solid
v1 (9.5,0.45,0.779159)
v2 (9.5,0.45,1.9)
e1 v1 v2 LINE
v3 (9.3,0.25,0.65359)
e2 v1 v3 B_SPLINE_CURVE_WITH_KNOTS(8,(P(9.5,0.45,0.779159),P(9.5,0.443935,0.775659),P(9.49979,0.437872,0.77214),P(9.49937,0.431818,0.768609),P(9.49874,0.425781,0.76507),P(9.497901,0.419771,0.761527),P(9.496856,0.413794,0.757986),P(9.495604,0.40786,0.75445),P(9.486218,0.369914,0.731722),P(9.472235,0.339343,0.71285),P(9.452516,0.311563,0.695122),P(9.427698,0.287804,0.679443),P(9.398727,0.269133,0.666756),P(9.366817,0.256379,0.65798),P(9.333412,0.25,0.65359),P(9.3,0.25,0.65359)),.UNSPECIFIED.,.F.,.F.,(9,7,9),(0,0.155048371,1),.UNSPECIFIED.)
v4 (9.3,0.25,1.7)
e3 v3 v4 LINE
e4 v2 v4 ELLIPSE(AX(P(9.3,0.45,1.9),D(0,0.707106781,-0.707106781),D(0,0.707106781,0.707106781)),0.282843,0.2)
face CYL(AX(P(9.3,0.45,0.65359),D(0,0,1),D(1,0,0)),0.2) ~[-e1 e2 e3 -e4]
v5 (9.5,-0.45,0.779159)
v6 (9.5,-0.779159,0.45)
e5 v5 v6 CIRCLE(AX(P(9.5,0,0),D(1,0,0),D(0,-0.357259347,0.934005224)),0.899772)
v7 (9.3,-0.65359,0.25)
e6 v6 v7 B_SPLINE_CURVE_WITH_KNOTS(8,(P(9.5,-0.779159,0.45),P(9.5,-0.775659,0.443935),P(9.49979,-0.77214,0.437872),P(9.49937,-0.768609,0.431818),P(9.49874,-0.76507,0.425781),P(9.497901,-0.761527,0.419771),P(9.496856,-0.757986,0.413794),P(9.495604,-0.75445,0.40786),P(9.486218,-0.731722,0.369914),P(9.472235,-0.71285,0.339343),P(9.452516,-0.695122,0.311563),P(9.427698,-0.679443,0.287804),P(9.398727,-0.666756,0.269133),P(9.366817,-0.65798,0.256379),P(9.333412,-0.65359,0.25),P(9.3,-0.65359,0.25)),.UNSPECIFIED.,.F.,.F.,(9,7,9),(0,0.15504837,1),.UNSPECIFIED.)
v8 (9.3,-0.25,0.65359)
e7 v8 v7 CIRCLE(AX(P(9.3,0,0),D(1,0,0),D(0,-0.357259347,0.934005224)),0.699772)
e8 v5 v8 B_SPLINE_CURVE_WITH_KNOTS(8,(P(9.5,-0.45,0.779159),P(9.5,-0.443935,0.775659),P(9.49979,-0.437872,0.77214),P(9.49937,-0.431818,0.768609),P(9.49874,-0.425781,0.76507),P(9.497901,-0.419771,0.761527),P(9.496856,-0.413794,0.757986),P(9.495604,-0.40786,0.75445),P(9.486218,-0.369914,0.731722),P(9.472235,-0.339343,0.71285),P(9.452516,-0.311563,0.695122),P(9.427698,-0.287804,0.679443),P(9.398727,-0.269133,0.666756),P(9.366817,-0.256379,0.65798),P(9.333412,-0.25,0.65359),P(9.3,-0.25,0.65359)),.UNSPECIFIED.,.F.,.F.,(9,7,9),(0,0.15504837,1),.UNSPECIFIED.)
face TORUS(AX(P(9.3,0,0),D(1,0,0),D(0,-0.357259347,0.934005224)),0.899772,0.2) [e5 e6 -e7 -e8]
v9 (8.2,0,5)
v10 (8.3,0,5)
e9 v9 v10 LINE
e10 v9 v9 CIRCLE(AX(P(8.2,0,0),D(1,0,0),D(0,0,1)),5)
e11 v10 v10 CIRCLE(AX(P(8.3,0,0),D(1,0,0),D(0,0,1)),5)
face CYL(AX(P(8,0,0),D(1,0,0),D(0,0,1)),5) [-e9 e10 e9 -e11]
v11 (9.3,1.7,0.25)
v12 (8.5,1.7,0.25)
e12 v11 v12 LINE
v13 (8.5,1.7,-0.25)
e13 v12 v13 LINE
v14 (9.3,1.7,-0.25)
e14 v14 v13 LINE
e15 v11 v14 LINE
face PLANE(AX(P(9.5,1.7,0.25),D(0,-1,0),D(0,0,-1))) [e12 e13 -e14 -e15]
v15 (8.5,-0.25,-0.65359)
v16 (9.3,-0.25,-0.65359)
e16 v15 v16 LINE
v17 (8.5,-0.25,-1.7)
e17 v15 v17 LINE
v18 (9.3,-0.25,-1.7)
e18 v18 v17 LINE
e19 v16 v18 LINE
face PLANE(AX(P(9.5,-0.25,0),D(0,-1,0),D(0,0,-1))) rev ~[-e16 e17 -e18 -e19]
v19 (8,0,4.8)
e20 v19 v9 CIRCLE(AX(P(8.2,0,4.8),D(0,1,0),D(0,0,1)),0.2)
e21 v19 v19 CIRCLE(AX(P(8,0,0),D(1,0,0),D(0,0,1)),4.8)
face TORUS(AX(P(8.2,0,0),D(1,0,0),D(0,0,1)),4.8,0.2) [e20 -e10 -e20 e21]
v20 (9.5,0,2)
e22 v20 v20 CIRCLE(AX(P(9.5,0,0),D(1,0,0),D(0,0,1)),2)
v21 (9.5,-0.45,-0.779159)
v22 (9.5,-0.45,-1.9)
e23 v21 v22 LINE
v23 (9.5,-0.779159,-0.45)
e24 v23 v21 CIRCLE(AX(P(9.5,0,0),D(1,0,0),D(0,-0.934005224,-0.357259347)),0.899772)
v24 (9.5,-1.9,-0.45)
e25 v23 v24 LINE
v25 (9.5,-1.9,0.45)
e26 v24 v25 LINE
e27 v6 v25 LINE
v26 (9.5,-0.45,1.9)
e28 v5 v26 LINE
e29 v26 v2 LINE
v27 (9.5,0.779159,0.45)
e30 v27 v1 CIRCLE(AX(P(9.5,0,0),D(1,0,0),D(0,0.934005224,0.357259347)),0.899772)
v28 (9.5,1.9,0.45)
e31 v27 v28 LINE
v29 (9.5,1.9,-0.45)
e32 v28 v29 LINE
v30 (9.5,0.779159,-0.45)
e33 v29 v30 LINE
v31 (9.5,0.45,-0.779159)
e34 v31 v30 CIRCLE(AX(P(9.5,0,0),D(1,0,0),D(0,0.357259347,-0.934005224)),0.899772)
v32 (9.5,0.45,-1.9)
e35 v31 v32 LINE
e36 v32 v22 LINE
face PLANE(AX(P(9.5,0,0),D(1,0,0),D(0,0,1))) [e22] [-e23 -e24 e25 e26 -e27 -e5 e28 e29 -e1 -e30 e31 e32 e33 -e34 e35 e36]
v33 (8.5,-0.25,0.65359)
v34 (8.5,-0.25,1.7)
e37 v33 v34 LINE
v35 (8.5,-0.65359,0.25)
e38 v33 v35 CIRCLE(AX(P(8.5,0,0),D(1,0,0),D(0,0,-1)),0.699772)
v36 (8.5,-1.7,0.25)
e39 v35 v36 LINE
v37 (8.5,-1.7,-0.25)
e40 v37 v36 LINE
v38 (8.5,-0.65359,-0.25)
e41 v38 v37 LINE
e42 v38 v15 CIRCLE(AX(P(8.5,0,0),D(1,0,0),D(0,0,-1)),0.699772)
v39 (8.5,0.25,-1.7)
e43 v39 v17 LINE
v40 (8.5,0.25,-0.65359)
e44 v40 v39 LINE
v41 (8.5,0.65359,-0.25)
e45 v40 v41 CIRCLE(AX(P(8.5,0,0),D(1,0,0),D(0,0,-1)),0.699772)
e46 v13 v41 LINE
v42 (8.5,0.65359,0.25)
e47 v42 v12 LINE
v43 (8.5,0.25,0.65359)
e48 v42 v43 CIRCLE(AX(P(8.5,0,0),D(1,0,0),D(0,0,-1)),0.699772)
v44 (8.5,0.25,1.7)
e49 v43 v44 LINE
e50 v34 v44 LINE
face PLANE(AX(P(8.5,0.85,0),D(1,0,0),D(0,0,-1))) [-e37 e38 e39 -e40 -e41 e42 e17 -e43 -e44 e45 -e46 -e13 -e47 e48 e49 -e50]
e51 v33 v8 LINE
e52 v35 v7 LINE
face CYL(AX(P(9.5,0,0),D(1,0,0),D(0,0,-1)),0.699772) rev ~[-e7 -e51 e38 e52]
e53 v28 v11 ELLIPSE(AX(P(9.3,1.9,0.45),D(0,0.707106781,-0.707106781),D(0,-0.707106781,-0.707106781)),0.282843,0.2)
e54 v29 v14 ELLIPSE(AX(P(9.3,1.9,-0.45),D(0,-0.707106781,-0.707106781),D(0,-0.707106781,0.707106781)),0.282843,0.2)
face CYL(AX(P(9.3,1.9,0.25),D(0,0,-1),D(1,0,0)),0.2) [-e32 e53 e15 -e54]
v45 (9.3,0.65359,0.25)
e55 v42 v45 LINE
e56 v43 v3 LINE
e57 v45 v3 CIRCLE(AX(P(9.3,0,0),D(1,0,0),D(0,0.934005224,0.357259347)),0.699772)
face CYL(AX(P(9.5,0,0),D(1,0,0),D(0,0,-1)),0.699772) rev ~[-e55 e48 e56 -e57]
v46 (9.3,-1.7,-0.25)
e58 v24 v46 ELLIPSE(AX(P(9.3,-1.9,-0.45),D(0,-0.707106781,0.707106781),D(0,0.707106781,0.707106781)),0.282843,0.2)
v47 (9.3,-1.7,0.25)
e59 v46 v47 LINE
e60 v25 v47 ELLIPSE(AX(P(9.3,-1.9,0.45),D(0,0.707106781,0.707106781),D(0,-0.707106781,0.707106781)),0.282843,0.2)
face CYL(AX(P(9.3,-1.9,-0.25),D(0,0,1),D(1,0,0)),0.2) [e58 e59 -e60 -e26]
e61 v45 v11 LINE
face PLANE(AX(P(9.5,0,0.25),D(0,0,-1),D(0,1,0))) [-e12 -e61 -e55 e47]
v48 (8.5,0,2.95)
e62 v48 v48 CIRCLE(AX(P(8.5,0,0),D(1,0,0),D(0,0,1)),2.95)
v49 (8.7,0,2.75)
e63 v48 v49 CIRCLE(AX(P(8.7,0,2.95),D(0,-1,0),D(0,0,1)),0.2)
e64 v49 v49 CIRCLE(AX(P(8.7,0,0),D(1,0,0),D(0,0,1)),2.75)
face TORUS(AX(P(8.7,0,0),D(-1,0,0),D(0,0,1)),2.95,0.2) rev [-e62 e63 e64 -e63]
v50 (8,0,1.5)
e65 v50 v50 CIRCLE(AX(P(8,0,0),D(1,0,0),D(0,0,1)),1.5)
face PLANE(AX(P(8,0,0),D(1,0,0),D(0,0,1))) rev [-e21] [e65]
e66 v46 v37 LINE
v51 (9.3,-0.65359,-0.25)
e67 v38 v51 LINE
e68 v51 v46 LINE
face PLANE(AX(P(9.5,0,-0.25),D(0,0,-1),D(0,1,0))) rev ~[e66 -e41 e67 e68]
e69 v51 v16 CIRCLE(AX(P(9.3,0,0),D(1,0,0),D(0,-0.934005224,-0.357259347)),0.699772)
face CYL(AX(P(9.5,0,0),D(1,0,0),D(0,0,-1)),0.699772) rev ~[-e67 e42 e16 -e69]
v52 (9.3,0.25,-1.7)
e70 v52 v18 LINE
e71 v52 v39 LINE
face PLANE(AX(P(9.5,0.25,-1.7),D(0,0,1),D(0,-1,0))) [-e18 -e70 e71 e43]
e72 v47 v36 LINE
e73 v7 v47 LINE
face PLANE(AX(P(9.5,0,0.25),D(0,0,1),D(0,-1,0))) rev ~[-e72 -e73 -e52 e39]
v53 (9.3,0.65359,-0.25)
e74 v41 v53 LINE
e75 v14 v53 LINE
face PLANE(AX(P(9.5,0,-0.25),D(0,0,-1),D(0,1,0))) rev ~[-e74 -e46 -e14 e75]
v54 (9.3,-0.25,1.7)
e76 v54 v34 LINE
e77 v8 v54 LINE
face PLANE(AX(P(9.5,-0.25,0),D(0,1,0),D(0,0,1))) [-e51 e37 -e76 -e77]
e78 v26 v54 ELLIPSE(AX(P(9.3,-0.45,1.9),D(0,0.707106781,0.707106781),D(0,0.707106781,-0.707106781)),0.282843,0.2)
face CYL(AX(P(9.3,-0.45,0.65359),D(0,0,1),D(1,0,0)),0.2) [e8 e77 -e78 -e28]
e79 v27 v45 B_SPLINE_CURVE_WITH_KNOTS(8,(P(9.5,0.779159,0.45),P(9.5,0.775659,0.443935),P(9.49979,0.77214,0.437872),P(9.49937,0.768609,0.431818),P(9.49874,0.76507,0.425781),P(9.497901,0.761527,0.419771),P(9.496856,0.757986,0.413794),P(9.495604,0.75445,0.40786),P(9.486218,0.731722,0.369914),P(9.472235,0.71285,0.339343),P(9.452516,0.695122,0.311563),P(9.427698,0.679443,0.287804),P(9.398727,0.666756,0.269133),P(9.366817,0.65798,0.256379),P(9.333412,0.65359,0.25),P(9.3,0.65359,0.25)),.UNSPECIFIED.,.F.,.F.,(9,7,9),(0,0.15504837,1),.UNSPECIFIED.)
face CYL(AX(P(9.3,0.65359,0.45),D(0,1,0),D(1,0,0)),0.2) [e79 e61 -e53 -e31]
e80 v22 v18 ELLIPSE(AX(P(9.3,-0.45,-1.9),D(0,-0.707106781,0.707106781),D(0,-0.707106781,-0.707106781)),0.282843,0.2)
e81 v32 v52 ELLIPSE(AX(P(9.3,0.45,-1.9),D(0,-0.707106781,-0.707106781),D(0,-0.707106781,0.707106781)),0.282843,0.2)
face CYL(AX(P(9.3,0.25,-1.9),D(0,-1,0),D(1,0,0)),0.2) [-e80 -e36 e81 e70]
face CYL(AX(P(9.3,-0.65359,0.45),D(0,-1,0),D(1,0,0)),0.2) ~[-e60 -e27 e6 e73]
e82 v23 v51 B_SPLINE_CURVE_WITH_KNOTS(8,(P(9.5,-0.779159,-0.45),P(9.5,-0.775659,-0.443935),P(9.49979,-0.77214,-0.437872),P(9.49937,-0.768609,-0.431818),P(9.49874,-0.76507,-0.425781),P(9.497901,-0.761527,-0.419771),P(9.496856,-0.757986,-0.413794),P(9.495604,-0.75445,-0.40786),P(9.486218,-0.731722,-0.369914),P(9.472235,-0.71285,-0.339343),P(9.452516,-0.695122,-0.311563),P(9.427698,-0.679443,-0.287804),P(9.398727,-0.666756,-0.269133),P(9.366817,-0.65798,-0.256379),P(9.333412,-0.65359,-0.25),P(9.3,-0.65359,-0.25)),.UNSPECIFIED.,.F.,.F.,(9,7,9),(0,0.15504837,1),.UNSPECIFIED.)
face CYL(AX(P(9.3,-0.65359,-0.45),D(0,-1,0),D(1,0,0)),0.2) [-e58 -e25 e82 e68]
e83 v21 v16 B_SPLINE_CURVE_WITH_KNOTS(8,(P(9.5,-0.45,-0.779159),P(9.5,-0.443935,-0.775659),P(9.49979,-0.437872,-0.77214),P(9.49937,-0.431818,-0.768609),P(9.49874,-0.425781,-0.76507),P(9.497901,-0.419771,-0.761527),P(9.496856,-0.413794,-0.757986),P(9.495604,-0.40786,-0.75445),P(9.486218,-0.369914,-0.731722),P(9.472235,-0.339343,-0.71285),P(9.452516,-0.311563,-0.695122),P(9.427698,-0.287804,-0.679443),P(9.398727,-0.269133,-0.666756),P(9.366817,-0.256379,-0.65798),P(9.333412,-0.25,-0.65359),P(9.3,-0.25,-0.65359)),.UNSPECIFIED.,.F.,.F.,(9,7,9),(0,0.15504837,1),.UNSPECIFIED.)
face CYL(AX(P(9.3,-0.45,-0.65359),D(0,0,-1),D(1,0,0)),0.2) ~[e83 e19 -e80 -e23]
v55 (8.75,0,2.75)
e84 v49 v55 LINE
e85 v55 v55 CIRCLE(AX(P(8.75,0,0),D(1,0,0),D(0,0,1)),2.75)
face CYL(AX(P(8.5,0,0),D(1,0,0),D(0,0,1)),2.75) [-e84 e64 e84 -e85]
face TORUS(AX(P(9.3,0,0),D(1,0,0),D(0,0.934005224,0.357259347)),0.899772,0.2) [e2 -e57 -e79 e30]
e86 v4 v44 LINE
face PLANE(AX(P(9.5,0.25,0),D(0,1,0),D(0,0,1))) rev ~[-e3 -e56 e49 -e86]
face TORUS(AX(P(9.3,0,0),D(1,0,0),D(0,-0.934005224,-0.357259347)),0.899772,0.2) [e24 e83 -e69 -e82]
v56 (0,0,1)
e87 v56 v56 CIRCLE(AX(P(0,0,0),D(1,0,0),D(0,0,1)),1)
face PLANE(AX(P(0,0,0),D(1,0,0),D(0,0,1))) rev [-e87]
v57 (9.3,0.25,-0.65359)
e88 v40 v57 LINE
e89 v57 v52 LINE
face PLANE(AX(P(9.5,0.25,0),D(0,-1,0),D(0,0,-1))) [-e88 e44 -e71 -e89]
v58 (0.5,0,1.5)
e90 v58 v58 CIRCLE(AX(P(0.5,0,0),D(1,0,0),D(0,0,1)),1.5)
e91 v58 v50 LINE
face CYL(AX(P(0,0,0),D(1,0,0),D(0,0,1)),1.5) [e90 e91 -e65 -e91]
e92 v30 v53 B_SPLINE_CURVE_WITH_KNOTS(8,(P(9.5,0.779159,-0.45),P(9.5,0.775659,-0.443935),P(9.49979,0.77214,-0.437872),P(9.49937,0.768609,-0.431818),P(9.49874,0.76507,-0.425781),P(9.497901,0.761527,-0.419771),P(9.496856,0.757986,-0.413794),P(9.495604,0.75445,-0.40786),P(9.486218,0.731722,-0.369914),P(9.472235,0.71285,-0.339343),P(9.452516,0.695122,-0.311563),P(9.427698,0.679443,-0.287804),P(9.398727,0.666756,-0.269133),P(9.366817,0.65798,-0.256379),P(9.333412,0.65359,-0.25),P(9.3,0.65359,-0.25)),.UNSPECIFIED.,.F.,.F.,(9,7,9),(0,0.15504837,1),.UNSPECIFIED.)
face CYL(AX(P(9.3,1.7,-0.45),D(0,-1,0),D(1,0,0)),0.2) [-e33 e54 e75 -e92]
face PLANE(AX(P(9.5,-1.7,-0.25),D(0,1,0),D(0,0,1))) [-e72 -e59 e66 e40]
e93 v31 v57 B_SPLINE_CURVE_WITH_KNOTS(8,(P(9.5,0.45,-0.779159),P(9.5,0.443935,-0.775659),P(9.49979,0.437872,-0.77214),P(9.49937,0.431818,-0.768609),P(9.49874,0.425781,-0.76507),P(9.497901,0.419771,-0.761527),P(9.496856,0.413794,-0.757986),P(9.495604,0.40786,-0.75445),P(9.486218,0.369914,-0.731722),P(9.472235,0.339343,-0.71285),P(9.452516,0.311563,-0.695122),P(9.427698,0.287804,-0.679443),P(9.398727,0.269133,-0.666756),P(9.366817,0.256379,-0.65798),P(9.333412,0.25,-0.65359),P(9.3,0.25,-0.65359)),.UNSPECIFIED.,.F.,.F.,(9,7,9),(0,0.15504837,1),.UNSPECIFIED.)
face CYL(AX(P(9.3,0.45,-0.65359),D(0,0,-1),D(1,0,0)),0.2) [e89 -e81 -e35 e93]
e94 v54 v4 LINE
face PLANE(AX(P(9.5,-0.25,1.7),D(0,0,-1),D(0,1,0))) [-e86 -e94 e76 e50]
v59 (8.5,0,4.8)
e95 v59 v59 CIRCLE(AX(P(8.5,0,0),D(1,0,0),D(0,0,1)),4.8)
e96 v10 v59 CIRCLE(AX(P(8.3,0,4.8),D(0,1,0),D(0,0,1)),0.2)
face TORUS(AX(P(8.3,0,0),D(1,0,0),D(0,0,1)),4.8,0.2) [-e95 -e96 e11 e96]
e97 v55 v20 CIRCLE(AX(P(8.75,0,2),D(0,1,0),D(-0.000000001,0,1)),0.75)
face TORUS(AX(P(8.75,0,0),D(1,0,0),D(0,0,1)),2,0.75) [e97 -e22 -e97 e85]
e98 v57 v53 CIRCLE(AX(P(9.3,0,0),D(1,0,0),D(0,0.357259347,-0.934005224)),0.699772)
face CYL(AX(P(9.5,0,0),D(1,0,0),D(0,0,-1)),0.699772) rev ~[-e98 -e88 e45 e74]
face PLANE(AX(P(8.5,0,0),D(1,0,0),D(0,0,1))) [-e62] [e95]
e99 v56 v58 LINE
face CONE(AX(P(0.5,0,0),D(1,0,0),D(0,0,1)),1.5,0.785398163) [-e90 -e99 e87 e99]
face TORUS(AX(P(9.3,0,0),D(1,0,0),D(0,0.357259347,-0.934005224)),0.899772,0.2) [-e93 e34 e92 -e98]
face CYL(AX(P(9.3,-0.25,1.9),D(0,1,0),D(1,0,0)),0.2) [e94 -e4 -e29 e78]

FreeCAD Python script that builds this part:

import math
import FreeCAD as App
import Part
import Sketcher
from FreeCAD import Vector
Q = App.Units.Quantity


def edges_at(feature, points):
    """Names of the edges that pass closest to the given points."""
    edges = feature.Shape.Edges
    near = lambda p: min(range(len(edges)), key=lambda i: edges[i].distToShape(Part.Vertex(*p))[0])
    return sorted({f"Edge{near(p) + 1}" for p in points})


def add_polygon(sketch, points):
    """Adds a closed chain of lines whose ends are joined by coincident constraints."""
    first, n = sketch.GeometryCount, len(points)
    for a, b in zip(points, points[1:] + points[:1]):
        sketch.addGeometry(Part.LineSegment(App.Vector(*a, 0), App.Vector(*b, 0)), False)
    for i in range(n):
        sketch.addConstraint(Sketcher.Constraint("Coincident", first + i, 2, first + (i + 1) % n, 1))

doc = App.newDocument("Part")
body = doc.addObject("PartDesign::Body", "Body")

# Sketch on XY plane
sketch1 = body.newObject("Sketcher::SketchObject", "Sketch")
sketch1.AttachmentSupport = (doc.getObject("XY_Plane"), [""])
sketch1.MapMode = "FlatFace"
sketch1.addGeometry([
    Part.LineSegment(Vector(0, 1.5, 0), Vector(0, 0, 0)),  # 0
    Part.LineSegment(Vector(0, 0, 0), Vector(9.5, 0, 0)),  # 1
    Part.LineSegment(Vector(9.5, 0, 0), Vector(9.5, 2, 0)),  # 2
    Part.ArcOfCircle(Part.Circle(Vector(8.75, 2, 0), Vector(0, 0, 1), 0.75), math.radians(0), math.radians(90)),  # 3
    Part.LineSegment(Vector(8.75, 2.75, 0), Vector(8.5, 2.75, 0)),  # 4
    Part.LineSegment(Vector(8.5, 2.75, 0), Vector(8.5, 5, 0)),  # 5
    Part.LineSegment(Vector(8.5, 5, 0), Vector(8, 5, 0)),  # 6
    Part.LineSegment(Vector(8, 5, 0), Vector(8, 1.5, 0)),  # 7
    Part.LineSegment(Vector(8, 1.5, 0), Vector(0, 1.5, 0)),  # 8
], False)
sketch1.addConstraint([
    Sketcher.Constraint("Coincident", 0, 2, 1, 1),
    Sketcher.Constraint("Coincident", 1, 2, 2, 1),
    Sketcher.Constraint("Tangent", 2, 2, 3, 1),
    Sketcher.Constraint("Tangent", 3, 2, 4, 1),
    Sketcher.Constraint("Coincident", 4, 2, 5, 1),
    Sketcher.Constraint("Coincident", 5, 2, 6, 1),
    Sketcher.Constraint("Coincident", 6, 2, 7, 1),
    Sketcher.Constraint("Coincident", 7, 2, 8, 1),
    Sketcher.Constraint("Coincident", 8, 2, 0, 1),
    Sketcher.Constraint("Vertical", 0),
    Sketcher.Constraint("Horizontal", 1),
    Sketcher.Constraint("Vertical", 2),
    Sketcher.Constraint("Horizontal", 4),
    Sketcher.Constraint("Vertical", 5),
    Sketcher.Constraint("Horizontal", 6),
    Sketcher.Constraint("Vertical", 7),
    Sketcher.Constraint("Horizontal", 8),
    Sketcher.Constraint("Coincident", 0, 2, -1, 1),
    Sketcher.Constraint("DistanceX", 8, 2, 8, 1, Q("8 mm")),
    Sketcher.Constraint("DistanceY", 2, 1, 2, 2, Q("2 mm")),
    Sketcher.Constraint("Radius", 3, Q("0.75 mm")),
    Sketcher.Constraint("DistanceX", 1, 1, 1, 2, Q("9.5 mm")),
    Sketcher.Constraint("DistanceX", 6, 2, 6, 1, Q("0.5 mm")),
    Sketcher.Constraint("DistanceY", 0, 2, 0, 1, Q("1.5 mm")),
    Sketcher.Constraint("DistanceY", 7, 2, 7, 1, Q("3.5 mm")),
])
revolution = body.newObject("PartDesign::Revolution", "Revolution")
revolution.Profile = sketch1
revolution.ReferenceAxis = (sketch1, ["H_Axis"])
revolution.Angle = 360

# Sketch on YZ plane
sketch2 = body.newObject("Sketcher::SketchObject", "Sketch001")
sketch2.AttachmentSupport = (doc.getObject("YZ_Plane"), [""])
sketch2.MapMode = "FlatFace"
sketch2.AttachmentOffset = App.Placement(Vector(0, 0, 9.5), App.Rotation())
add_polygon(sketch2, [(1.7, 0.25), (0, 0.25), (0, -0.25), (1.7, -0.25)])  # lines 0-3
sketch2.addConstraint([
    Sketcher.Constraint("Horizontal", 0),
    Sketcher.Constraint("Vertical", 1),
    Sketcher.Constraint("Horizontal", 2),
    Sketcher.Constraint("Vertical", 3),
    Sketcher.Constraint("Symmetric", 0, 2, 1, 2, -1, 1),
    Sketcher.Constraint("DistanceX", 0, 2, 0, 1, Q("1.7 mm")),
    Sketcher.Constraint("DistanceY", 1, 2, 1, 1, Q("0.5 mm")),
])
pocket1 = body.newObject("PartDesign::Pocket", "Pocket")
pocket1.Profile = sketch2
pocket1.Length = 1
doc.recompute()

polarpattern = body.newObject("PartDesign::PolarPattern", "PolarPattern")
polarpattern.Originals = [pocket1]
polarpattern.Axis = (doc.getObject("X_Axis"), [""])
polarpattern.Angle = 360
polarpattern.Occurrences = 4
body.Tip = polarpattern

# Sketch on YZ plane
sketch3 = body.newObject("Sketcher::SketchObject", "Sketch002")
sketch3.AttachmentSupport = (doc.getObject("YZ_Plane"), [""])
sketch3.MapMode = "FlatFace"
sketch3.AttachmentOffset = App.Placement(Vector(0, 0, 9.5), App.Rotation())
sketch3.addGeometry(Part.Circle(Vector(0, 0, 0), Vector(0, 0, 1), 0.699772), False)
sketch3.addConstraint([
    Sketcher.Constraint("Coincident", 0, 3, -1, 1),
    Sketcher.Constraint("Diameter", 0, Q("1.399544 mm")),
])
pocket2 = body.newObject("PartDesign::Pocket", "Pocket001")
pocket2.Profile = sketch3
pocket2.Length = 1
doc.recompute()

chamfer = body.newObject("PartDesign::Chamfer", "Chamfer")
chamfer.Base = (pocket2, edges_at(pocket2, [(0, 0, -1.5)]))
chamfer.Size = 0.5
doc.recompute()

fillet = body.newObject("PartDesign::Fillet", "Fillet")
fillet.Base = (chamfer, edges_at(chamfer, [
    (8, 0, -5),
    (8.5, 0, -5),
    (8.5, 0, -2.75),
    (9.5, 0, 1.7),
    (9.5, -0.25, 1.177),
    (9.5, -0.495, 0.495),
    (9.5, -1.177, 0.25),
    (9.5, -1.7, 0),
    (9.5, -1.177, -0.25),
    (9.5, -0.495, -0.495),
    (9.5, -0.25, -1.177),
    (9.5, 0, -1.7),
    (9.5, 0.25, -1.177),
    (9.5, 0.495, -0.495),
    (9.5, 1.177, -0.25),
    (9.5, 1.7, 0),
    (9.5, 1.177, 0.25),
    (9.5, 0.495, 0.495),
    (9.5, 0.25, 1.177),
]))
fillet.Radius = 0.2

doc.recompute()
